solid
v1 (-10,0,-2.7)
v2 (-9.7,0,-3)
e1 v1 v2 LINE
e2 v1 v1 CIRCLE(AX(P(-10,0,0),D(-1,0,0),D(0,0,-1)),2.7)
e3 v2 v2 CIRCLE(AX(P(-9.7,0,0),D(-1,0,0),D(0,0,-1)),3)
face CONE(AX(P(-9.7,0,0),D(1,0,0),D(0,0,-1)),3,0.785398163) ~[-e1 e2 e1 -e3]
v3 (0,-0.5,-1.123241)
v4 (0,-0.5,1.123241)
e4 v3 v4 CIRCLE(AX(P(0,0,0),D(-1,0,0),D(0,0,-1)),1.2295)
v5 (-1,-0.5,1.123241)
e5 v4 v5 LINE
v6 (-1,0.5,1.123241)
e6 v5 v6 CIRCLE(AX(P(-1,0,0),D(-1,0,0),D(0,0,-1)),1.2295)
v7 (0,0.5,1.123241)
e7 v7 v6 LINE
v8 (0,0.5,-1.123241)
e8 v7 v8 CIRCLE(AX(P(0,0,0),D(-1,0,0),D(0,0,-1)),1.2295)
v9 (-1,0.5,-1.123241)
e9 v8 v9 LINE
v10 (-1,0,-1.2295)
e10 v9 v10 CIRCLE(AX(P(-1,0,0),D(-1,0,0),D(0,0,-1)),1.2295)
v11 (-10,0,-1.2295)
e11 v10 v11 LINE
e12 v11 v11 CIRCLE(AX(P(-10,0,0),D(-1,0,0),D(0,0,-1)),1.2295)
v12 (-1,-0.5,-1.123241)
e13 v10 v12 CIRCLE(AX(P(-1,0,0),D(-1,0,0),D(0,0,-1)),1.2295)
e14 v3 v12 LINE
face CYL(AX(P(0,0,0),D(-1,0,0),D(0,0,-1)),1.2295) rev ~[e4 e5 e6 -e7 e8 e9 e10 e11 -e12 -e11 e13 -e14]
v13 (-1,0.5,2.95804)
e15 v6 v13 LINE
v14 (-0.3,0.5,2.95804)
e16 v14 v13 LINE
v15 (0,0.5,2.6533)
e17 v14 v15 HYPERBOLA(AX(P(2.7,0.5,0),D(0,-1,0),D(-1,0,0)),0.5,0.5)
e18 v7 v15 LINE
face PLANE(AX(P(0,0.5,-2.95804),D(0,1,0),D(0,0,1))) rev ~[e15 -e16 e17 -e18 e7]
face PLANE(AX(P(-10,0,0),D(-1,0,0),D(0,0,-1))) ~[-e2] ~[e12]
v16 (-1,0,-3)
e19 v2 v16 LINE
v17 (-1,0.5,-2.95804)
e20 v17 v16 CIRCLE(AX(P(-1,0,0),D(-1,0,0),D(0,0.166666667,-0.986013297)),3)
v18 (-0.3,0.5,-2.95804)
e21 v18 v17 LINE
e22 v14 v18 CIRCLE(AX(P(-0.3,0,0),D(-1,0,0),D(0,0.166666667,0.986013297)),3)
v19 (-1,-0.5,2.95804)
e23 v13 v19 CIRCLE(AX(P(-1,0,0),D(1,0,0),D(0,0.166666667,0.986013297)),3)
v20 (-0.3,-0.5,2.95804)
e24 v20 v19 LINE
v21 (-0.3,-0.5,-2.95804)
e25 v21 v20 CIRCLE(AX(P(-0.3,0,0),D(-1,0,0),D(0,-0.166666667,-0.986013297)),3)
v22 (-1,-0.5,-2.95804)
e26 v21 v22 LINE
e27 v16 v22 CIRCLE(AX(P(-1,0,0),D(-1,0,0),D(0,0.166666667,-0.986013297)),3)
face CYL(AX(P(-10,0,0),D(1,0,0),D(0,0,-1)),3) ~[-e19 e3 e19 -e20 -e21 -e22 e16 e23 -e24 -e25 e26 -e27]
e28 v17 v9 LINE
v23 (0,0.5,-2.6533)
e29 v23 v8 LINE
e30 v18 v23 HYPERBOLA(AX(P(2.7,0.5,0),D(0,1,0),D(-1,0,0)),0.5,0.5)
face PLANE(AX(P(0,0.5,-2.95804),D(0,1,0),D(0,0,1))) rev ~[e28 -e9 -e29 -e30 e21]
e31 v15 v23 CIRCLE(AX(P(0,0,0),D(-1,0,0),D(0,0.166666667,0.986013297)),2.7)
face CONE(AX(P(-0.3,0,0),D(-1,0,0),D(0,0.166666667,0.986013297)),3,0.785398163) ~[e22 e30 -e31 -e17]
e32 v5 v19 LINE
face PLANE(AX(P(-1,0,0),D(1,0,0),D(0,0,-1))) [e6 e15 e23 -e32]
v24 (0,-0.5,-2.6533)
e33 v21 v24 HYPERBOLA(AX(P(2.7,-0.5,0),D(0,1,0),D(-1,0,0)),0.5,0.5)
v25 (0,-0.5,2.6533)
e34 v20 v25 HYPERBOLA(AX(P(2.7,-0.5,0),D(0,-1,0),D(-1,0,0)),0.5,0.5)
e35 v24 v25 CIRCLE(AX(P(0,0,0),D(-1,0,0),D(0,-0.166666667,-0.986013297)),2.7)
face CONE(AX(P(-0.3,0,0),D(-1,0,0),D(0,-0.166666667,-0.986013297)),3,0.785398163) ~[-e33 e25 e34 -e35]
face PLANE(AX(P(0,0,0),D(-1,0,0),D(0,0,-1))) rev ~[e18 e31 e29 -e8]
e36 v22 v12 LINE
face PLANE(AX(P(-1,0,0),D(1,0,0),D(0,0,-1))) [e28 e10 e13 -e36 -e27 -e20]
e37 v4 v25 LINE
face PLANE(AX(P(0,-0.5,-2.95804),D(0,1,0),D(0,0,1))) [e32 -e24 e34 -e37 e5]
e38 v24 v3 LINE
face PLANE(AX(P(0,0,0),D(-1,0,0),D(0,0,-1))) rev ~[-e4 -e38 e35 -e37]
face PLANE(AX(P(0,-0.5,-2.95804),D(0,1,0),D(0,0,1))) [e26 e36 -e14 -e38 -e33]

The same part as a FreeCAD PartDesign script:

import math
import FreeCAD as App
import Part
import Sketcher

V = App.Vector
Q = App.Units.Quantity


def edges_at(feature, points):
    """Names of the edges that pass closest to the given points."""
    edges = feature.Shape.Edges
    near = lambda p: min(range(len(edges)), key=lambda i: edges[i].distToShape(Part.Vertex(*p))[0])
    return sorted({f"Edge{near(p) + 1}" for p in points})


def add_polygon(sketch, points):
    """Adds a closed chain of lines whose ends are joined by coincident constraints."""
    first, n = sketch.GeometryCount, len(points)
    for a, b in zip(points, points[1:] + points[:1]):
        sketch.addGeometry(Part.LineSegment(App.Vector(*a, 0), App.Vector(*b, 0)), False)
    for i in range(n):
        sketch.addConstraint(Sketcher.Constraint("Coincident", first + i, 2, first + (i + 1) % n, 1))

doc = App.newDocument("Part")
body = doc.addObject("PartDesign::Body", "Body")

sketch1 = body.newObject("Sketcher::SketchObject", "Sketch")
sketch1.AttachmentSupport = (doc.getObject("XZ_Plane"), [""])
sketch1.MapMode = "FlatFace"
add_polygon(sketch1, [(-10, 0), (0, 0), (0, -3), (-10, -3)])
sketch1.addConstraint([
    Sketcher.Constraint("Horizontal", 0),
    Sketcher.Constraint("Vertical", 1),
    Sketcher.Constraint("Horizontal", 2),
    Sketcher.Constraint("Vertical", 3),
    Sketcher.Constraint("Coincident", 0, 2, -1, 1),
    Sketcher.Constraint("DistanceX", 0, 1, 0, 2, Q("10 mm")),
    Sketcher.Constraint("DistanceY", 1, 2, 1, 1, Q("3 mm")),
])
revolution = body.newObject("PartDesign::Revolution", "Revolution")
revolution.Profile = sketch1
revolution.ReferenceAxis = (sketch1, ["H_Axis"])
revolution.Angle = 360

sketch2 = body.newObject("Sketcher::SketchObject", "Sketch001")
sketch2.AttachmentSupport = (doc.getObject("YZ_Plane"), [""])
sketch2.MapMode = "FlatFace"
sketch2.addGeometry(Part.Circle(V(0, 0, 0), V(0, 0, 1), 1.2), False)
sketch2.addConstraint([
    Sketcher.Constraint("Coincident", 0, 3, -1, 1),
    Sketcher.Constraint("Diameter", 0, Q("2.459 mm")),
])
doc.recompute()
hole = body.newObject("PartDesign::Hole", "Hole")
hole.Profile = sketch2
hole.ThreadType = "None"
hole.Diameter = 2.459
hole.DepthType = "ThroughAll"

sketch3 = body.newObject("Sketcher::SketchObject", "Sketch002")
sketch3.AttachmentSupport = (doc.getObject("YZ_Plane"), [""])
sketch3.MapMode = "FlatFace"
sketch3.addGeometry([
    Part.ArcOfCircle(Part.Circle(V(0, 0, 0), V(0, 0, 1), 3), math.radians(80.41), math.radians(99.59)),
    Part.LineSegment(V(-0.5, 3, 0), V(-0.5, -3, 0)),
    Part.ArcOfCircle(Part.Circle(V(0, 0, 0), V(0, 0, 1), 3), math.radians(-99.59), math.radians(-80.41)),
    Part.LineSegment(V(0.5, -3, 0), V(0.5, 3, 0)),
], False)
sketch3.addConstraint([
    Sketcher.Constraint("Coincident", 0, 2, 1, 1),
    Sketcher.Constraint("Coincident", 1, 2, 2, 1),
    Sketcher.Constraint("Coincident", 2, 2, 3, 1),
    Sketcher.Constraint("Coincident", 3, 2, 0, 1),
    Sketcher.Constraint("Vertical", 1),
    Sketcher.Constraint("Vertical", 3),
    Sketcher.Constraint("Coincident", 0, 3, -1, 1),
    Sketcher.Constraint("Coincident", 2, 3, -1, 1),
    Sketcher.Constraint("Equal", 0, 2),
    Sketcher.Constraint("Horizontal", 1, 2, 2, 2),
    Sketcher.Constraint("Radius", 0, Q("3 mm")),
    Sketcher.Constraint("DistanceX", 0, 2, -1, 1, Q("0.5 mm")),
])
pocket1 = body.newObject("PartDesign::Pocket", "Pocket")
pocket1.Profile = sketch3
pocket1.Length = 1
doc.recompute()

chamfer = body.newObject("PartDesign::Chamfer", "Chamfer")
chamfer.Base = (pocket1, edges_at(pocket1, [(-10, 0, 3), (0, 3, 0), (0, -3, 0)]))
chamfer.Size = 0.3

doc.recompute()
